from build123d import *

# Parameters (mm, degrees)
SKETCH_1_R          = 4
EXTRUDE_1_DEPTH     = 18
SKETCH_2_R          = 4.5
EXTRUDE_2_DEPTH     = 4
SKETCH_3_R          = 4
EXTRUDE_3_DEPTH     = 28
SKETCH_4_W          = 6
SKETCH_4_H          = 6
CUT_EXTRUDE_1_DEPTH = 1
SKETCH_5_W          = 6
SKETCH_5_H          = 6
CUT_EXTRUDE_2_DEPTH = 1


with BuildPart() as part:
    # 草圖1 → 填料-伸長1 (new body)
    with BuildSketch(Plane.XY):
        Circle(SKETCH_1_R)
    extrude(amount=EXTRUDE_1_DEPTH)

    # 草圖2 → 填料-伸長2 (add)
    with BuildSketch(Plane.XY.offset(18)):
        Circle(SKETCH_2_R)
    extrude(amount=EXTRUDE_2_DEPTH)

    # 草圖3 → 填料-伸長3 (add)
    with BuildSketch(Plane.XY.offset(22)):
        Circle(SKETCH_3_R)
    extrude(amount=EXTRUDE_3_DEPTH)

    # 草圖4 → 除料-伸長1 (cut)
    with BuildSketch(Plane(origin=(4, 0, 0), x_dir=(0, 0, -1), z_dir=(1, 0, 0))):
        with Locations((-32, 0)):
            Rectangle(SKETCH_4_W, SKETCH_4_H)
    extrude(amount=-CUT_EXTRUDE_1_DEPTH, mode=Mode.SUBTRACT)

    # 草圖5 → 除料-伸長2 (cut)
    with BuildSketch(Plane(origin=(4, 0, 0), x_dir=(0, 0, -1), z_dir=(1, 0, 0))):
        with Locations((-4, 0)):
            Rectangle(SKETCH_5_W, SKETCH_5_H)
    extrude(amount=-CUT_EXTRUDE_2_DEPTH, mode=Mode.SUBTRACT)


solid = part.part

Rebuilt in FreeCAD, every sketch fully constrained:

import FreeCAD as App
import Part
import Sketcher

doc = App.newDocument("Part")
body = doc.addObject("PartDesign::Body", "Body")

sketch1 = body.newObject("Sketcher::SketchObject", "Sketch")
sketch1.AttachmentSupport = (doc.getObject("XY_Plane"), [""])
sketch1.MapMode = "FlatFace"
sketch1.addGeometry(Part.Circle(App.Vector(0, 0, 0), App.Vector(0, 0, 1), 4), False)
sketch1.addConstraint([
    Sketcher.Constraint("Coincident", 0, 3, -1, 1),
    Sketcher.Constraint("Diameter", 0, 8.0),
])
pad1 = body.newObject("PartDesign::Pad", "Pad")
pad1.Profile = sketch1
pad1.Length = 18

sketch2 = body.newObject("Sketcher::SketchObject", "Sketch001")
sketch2.AttachmentSupport = (doc.getObject("XY_Plane"), [""])
sketch2.MapMode = "FlatFace"
sketch2.AttachmentOffset = App.Placement(App.Vector(0, 0, 18), App.Rotation())
sketch2.addGeometry(Part.Circle(App.Vector(0, 0, 0), App.Vector(0, 0, 1), 4.5), False)
sketch2.addConstraint([
    Sketcher.Constraint("Coincident", 0, 3, -1, 1),
    Sketcher.Constraint("Diameter", 0, 9.0),
])
pad2 = body.newObject("PartDesign::Pad", "Pad001")
pad2.Profile = sketch2
pad2.Length = 4

sketch3 = body.newObject("Sketcher::SketchObject", "Sketch002")
sketch3.AttachmentSupport = (doc.getObject("XY_Plane"), [""])
sketch3.MapMode = "FlatFace"
sketch3.AttachmentOffset = App.Placement(App.Vector(0, 0, 22), App.Rotation())
sketch3.addGeometry(Part.Circle(App.Vector(0, 0, 0), App.Vector(0, 0, 1), 4), False)
sketch3.addConstraint([
    Sketcher.Constraint("Coincident", 0, 3, -1, 1),
    Sketcher.Constraint("Diameter", 0, 8.0),
])
pad3 = body.newObject("PartDesign::Pad", "Pad002")
pad3.Profile = sketch3
pad3.Length = 28

sketch4 = body.newObject("Sketcher::SketchObject", "Sketch003")
sketch4.AttachmentSupport = (doc.getObject("YZ_Plane"), [""])
sketch4.MapMode = "FlatFace"
sketch4.AttachmentOffset = App.Placement(App.Vector(0, 0, 4), App.Rotation())
sketch4.addGeometry([
    Part.LineSegment(App.Vector(3, 35, 0), App.Vector(-3, 35, 0)),
    Part.LineSegment(App.Vector(-3, 35, 0), App.Vector(-3, 29, 0)),
    Part.LineSegment(App.Vector(-3, 29, 0), App.Vector(3, 29, 0)),
    Part.LineSegment(App.Vector(3, 29, 0), App.Vector(3, 35, 0)),
], False)
sketch4.addConstraint([
    Sketcher.Constraint("Coincident", 0, 2, 1, 1),
    Sketcher.Constraint("Coincident", 1, 2, 2, 1),
    Sketcher.Constraint("Coincident", 2, 2, 3, 1),
    Sketcher.Constraint("Coincident", 3, 2, 0, 1),
    Sketcher.Constraint("Horizontal", 0),
    Sketcher.Constraint("Vertical", 1),
    Sketcher.Constraint("Horizontal", 2),
    Sketcher.Constraint("Vertical", 3),
    Sketcher.Constraint("Equal", 2, 1),
    Sketcher.Constraint("DistanceX", 0, 2, 0, 1, 6.0),
    Sketcher.Constraint("DistanceX", 0, 2, -1, 1, 3.0),
    Sketcher.Constraint("DistanceY", -1, 1, 0, 2, 35.0),
])
pocket1 = body.newObject("PartDesign::Pocket", "Pocket")
pocket1.Profile = sketch4
pocket1.Length = 1

sketch5 = body.newObject("Sketcher::SketchObject", "Sketch004")
sketch5.AttachmentSupport = (doc.getObject("YZ_Plane"), [""])
sketch5.MapMode = "FlatFace"
sketch5.AttachmentOffset = App.Placement(App.Vector(0, 0, 4), App.Rotation())
sketch5.addGeometry([
    Part.LineSegment(App.Vector(3, 7, 0), App.Vector(-3, 7, 0)),
    Part.LineSegment(App.Vector(-3, 7, 0), App.Vector(-3, 1, 0)),
    Part.LineSegment(App.Vector(-3, 1, 0), App.Vector(3, 1, 0)),
    Part.LineSegment(App.Vector(3, 1, 0), App.Vector(3, 7, 0)),
], False)
sketch5.addConstraint([
    Sketcher.Constraint("Coincident", 0, 2, 1, 1),
    Sketcher.Constraint("Coincident", 1, 2, 2, 1),
    Sketcher.Constraint("Coincident", 2, 2, 3, 1),
    Sketcher.Constraint("Coincident", 3, 2, 0, 1),
    Sketcher.Constraint("Horizontal", 0),
    Sketcher.Constraint("Vertical", 1),
    Sketcher.Constraint("Horizontal", 2),
    Sketcher.Constraint("Vertical", 3),
    Sketcher.Constraint("Equal", 2, 1),
    Sketcher.Constraint("DistanceX", 0, 2, 0, 1, 6.0),
    Sketcher.Constraint("DistanceX", 0, 2, -1, 1, 3.0),
    Sketcher.Constraint("DistanceY", -1, 1, 0, 2, 7.0),
])
pocket2 = body.newObject("PartDesign::Pocket", "Pocket001")
pocket2.Profile = sketch5
pocket2.Length = 1

doc.recompute()
